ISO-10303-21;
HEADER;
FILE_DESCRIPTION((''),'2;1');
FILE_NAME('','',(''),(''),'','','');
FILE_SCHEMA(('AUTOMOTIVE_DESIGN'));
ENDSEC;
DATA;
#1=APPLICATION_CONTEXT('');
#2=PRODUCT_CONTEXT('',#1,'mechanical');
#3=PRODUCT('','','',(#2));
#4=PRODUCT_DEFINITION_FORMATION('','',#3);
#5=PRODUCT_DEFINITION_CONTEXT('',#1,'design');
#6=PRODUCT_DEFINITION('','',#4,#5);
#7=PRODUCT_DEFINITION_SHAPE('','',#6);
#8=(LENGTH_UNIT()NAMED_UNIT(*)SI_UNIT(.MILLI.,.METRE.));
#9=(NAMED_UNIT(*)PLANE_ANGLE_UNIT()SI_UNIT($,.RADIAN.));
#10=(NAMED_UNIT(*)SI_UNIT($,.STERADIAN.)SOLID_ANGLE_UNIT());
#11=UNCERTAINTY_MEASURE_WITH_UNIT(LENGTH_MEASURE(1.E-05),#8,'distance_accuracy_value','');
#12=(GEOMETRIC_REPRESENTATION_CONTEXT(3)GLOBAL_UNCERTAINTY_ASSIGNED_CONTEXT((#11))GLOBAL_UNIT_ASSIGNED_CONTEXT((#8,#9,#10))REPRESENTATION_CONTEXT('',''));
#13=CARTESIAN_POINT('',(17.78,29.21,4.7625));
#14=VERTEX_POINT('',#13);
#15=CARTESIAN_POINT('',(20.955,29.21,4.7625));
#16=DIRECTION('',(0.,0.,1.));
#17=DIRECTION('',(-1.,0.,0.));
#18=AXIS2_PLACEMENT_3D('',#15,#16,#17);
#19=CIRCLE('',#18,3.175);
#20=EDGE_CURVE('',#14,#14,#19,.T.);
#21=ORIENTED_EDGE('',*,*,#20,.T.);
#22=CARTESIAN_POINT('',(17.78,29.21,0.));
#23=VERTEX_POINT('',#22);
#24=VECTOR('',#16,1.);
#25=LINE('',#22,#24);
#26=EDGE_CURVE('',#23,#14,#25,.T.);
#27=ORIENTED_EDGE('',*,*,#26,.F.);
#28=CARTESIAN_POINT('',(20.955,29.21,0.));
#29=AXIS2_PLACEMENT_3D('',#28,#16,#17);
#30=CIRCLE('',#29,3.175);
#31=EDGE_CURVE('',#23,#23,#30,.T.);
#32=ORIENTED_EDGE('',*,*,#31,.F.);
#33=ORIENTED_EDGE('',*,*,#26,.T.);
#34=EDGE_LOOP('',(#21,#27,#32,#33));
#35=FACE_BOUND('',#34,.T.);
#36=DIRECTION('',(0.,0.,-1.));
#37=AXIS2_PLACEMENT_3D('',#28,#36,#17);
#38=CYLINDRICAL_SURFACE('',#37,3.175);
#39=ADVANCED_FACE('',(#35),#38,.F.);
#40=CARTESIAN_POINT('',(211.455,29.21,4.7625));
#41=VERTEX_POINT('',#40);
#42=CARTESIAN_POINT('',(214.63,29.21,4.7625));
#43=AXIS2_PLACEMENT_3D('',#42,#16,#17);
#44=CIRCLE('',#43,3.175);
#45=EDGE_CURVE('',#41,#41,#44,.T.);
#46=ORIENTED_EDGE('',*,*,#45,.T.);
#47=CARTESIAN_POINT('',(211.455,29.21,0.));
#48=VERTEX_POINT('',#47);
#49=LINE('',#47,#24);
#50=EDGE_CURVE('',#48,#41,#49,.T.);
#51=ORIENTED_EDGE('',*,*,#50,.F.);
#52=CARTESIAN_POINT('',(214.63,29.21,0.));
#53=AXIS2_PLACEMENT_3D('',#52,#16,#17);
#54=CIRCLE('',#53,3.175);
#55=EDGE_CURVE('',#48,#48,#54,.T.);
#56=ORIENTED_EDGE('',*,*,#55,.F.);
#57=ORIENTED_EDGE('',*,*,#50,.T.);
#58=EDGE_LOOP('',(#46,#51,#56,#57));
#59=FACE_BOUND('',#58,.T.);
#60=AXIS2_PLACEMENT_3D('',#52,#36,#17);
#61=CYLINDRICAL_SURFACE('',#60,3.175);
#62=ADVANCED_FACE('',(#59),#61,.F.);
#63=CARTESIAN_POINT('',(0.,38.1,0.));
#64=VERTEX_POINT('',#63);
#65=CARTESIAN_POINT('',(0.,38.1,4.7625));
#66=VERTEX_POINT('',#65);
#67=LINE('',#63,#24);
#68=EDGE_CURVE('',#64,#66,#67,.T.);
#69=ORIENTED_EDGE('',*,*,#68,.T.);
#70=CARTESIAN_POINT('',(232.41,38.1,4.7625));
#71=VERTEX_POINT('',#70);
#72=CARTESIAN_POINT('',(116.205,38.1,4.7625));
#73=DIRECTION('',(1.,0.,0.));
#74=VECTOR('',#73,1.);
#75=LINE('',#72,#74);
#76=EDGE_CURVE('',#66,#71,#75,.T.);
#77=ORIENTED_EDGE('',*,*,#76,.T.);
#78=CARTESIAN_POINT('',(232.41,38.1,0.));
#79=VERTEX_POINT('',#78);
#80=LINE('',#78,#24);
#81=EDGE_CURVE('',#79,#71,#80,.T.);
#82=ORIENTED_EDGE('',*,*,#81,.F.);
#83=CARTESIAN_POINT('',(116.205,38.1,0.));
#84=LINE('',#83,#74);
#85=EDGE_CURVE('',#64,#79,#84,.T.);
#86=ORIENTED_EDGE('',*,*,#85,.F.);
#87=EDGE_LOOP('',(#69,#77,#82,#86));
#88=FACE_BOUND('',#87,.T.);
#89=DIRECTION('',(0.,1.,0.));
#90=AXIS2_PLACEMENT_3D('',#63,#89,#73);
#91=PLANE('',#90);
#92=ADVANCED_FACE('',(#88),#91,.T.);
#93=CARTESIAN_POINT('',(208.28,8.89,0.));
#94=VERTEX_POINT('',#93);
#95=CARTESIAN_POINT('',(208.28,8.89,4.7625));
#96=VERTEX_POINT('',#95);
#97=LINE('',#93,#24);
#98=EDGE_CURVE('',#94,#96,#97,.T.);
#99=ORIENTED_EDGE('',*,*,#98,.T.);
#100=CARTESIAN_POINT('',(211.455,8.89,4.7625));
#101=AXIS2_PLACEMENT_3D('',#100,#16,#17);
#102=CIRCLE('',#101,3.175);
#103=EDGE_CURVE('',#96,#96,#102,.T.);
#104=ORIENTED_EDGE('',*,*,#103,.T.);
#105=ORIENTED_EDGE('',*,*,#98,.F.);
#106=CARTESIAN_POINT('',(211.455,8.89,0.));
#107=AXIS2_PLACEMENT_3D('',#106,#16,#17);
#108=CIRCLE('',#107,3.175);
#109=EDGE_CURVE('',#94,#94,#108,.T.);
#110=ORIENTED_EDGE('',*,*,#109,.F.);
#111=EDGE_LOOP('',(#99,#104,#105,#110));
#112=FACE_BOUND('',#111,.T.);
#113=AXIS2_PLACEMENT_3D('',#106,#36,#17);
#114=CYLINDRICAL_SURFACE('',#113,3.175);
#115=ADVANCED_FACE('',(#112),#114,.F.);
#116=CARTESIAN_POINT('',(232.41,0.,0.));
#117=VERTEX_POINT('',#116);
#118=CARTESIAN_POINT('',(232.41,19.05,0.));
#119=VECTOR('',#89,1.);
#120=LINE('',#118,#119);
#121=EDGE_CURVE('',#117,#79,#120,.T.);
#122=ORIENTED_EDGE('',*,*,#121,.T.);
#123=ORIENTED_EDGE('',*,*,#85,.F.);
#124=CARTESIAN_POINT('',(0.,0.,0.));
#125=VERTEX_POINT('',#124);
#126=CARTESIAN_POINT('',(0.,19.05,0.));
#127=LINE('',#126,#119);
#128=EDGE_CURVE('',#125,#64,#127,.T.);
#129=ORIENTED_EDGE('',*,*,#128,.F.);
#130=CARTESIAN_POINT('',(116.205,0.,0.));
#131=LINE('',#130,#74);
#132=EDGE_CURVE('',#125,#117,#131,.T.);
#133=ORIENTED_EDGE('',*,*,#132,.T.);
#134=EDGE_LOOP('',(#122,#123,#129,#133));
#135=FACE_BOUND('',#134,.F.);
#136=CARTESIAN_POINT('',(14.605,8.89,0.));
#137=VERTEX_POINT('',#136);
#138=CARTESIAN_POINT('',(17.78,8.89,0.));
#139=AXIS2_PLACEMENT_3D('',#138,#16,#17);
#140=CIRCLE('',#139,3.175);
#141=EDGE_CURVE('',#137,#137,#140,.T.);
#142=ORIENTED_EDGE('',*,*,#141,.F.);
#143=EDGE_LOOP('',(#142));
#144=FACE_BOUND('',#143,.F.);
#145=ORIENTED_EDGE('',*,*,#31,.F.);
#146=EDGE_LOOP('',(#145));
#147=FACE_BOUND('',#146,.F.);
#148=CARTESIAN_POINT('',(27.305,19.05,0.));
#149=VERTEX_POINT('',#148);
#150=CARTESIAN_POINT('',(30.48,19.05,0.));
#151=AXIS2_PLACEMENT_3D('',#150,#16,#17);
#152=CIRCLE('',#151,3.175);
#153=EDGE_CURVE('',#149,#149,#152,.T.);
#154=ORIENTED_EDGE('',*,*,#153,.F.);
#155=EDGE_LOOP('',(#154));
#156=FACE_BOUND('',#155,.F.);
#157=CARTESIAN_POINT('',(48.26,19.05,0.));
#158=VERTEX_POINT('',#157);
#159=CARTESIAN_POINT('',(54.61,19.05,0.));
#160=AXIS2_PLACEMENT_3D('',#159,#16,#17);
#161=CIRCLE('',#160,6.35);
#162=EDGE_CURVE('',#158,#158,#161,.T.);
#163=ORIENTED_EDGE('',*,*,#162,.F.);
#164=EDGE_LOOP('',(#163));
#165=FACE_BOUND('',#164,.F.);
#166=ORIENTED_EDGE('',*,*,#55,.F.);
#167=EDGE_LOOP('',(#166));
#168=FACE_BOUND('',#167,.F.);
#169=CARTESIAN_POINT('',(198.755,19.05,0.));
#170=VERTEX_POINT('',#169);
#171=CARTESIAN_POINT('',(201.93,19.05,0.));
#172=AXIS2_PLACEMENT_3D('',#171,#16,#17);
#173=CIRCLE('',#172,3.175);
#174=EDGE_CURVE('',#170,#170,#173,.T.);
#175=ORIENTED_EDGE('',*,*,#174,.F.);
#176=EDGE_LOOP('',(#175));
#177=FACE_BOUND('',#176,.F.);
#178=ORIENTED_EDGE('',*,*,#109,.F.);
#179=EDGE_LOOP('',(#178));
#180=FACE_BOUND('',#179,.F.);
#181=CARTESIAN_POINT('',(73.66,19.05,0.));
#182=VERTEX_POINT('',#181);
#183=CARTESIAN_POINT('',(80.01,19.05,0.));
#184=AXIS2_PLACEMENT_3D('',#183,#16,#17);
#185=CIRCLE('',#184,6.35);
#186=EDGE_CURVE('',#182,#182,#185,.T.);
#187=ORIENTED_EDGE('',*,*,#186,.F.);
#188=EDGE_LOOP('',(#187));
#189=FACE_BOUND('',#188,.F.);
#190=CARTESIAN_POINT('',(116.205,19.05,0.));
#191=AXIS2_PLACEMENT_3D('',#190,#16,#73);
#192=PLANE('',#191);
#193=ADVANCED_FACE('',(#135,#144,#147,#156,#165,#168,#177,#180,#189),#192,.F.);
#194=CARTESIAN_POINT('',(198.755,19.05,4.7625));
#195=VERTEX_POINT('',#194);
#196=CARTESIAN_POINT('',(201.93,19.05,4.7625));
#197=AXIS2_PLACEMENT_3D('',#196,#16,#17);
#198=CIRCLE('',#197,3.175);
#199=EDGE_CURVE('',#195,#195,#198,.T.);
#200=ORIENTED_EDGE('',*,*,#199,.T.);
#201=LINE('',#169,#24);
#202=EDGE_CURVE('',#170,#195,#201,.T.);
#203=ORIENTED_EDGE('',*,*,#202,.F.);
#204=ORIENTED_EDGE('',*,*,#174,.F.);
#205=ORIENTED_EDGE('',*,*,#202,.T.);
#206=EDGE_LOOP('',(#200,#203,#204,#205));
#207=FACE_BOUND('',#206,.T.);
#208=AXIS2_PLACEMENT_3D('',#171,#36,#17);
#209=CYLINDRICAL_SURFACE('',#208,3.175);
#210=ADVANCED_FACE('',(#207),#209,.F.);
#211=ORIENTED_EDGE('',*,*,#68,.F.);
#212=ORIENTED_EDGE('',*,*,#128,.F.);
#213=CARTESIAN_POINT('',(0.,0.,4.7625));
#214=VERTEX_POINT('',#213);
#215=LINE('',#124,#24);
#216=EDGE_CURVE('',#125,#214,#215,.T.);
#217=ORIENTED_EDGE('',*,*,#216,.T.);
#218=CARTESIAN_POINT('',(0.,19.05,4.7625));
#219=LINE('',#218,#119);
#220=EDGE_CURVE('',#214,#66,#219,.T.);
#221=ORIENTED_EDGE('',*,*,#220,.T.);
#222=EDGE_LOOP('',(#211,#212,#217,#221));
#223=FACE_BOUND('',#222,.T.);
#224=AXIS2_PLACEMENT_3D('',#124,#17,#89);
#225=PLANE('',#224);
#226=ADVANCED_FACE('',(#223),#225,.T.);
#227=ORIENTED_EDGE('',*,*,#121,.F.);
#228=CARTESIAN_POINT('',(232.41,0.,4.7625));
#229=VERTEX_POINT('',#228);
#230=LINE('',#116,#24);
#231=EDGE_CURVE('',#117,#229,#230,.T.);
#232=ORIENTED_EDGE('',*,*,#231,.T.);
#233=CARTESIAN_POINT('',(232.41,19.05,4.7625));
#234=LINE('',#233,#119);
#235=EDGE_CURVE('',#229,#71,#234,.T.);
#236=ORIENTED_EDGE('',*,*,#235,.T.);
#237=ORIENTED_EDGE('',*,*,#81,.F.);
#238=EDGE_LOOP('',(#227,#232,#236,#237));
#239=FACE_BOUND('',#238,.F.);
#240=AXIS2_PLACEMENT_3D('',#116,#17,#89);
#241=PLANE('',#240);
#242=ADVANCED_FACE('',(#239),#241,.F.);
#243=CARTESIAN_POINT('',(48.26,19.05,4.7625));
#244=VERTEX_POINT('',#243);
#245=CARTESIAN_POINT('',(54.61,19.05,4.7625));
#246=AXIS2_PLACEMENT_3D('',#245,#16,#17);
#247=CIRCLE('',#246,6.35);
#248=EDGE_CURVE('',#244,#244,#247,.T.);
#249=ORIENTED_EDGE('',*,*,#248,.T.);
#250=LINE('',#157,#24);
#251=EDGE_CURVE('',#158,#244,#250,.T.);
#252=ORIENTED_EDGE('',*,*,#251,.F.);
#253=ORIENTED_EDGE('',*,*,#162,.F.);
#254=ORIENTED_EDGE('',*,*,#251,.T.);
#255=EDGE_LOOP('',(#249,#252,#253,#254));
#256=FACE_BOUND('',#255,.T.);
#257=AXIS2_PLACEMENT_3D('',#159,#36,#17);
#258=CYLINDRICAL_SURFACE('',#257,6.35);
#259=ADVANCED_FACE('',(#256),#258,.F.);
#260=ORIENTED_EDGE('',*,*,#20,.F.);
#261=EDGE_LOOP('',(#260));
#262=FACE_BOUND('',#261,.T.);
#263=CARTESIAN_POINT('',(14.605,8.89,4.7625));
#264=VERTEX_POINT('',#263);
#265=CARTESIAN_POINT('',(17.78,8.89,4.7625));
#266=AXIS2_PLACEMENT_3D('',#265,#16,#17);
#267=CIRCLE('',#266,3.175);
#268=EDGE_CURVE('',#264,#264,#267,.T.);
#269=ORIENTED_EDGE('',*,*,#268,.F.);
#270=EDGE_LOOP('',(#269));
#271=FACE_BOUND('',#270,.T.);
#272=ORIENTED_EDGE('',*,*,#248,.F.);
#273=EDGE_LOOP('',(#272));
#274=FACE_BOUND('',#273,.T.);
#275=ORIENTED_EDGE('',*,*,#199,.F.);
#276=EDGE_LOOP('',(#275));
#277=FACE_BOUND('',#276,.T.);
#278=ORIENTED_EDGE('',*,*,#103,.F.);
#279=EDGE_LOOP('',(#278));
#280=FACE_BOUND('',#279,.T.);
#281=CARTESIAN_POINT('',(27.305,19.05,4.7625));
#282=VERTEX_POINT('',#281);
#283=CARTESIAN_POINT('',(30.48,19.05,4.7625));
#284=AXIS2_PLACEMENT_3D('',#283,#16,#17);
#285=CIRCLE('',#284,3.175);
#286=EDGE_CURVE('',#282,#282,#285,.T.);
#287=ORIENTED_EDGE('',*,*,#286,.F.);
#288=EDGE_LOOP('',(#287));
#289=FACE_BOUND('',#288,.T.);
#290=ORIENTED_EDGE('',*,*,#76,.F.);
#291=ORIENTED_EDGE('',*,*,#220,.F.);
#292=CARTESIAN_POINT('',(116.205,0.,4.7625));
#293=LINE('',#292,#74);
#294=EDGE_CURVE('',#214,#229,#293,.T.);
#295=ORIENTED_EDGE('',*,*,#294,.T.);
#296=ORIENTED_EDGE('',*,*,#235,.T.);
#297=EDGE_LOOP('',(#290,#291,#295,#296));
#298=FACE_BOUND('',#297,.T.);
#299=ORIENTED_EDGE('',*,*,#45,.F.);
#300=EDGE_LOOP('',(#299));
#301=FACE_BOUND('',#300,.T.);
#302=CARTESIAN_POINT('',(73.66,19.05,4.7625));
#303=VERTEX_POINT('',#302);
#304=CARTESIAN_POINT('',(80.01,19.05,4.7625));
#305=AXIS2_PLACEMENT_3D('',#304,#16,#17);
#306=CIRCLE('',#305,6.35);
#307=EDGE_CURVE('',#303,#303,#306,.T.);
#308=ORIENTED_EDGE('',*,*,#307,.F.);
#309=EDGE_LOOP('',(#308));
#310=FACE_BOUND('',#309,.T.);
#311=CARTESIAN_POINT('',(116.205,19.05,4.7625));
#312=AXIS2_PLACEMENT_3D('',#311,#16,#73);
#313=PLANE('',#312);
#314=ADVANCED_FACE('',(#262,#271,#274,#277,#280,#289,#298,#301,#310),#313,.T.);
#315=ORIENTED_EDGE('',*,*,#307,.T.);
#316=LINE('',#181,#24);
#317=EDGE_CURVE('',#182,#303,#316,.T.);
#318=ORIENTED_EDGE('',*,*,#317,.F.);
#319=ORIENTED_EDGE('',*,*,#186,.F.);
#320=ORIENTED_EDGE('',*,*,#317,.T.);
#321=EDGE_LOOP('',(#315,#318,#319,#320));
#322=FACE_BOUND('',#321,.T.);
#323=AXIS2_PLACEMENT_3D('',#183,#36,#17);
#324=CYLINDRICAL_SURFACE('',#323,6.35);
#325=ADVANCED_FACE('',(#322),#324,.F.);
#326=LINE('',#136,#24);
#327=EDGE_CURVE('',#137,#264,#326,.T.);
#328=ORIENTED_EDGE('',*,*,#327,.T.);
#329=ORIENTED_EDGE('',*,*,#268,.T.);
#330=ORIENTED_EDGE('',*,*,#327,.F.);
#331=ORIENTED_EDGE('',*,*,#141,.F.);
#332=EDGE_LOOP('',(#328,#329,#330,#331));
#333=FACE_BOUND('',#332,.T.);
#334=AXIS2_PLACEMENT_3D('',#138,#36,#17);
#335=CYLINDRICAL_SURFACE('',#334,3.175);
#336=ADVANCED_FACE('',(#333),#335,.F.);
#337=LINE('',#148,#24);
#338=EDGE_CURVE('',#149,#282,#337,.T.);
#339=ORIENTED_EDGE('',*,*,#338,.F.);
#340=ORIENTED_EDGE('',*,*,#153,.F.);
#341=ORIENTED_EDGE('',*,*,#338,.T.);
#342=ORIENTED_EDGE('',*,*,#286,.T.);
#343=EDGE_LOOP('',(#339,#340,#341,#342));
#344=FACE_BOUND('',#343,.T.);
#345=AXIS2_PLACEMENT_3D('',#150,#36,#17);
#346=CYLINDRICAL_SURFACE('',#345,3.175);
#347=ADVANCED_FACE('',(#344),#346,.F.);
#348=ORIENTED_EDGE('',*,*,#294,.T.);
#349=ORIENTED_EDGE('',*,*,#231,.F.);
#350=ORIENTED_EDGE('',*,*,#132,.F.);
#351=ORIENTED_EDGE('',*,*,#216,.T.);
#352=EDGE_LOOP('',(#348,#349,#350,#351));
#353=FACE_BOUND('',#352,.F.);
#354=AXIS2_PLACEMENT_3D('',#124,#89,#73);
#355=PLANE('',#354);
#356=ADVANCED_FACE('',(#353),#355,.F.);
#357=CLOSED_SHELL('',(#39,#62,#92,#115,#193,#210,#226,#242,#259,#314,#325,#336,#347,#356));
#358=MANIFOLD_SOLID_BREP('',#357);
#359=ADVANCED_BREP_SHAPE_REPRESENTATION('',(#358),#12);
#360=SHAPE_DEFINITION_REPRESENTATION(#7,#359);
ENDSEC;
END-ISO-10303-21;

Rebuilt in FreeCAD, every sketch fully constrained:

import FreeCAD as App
import Part
import Sketcher
Q = App.Units.Quantity


def add_polygon(sketch, points):
    """Adds a closed chain of lines whose ends are joined by coincident constraints."""
    first, n = sketch.GeometryCount, len(points)
    for a, b in zip(points, points[1:] + points[:1]):
        sketch.addGeometry(Part.LineSegment(App.Vector(*a, 0), App.Vector(*b, 0)), False)
    for i in range(n):
        sketch.addConstraint(Sketcher.Constraint("Coincident", first + i, 2, first + (i + 1) % n, 1))

doc = App.newDocument("Part")
params = doc.addObject("Spreadsheet::Sheet", "Params")
for row, (alias, value) in enumerate([
    ("sketch1_diameter", "0.5 in"),
    ("sketch1_diameter2", "0.25 in"),
    ("sketch1_height", "1.5 in"),
    ("sketch1_width", "9.15 in"),
    ("pad1_length", "0.1875 in"),
], start=1):
    params.set(f"A{row}", alias)
    params.set(f"B{row}", "=" + value)
    params.setAlias(f"B{row}", alias)

body = doc.addObject("PartDesign::Body", "Body")

sketch1 = body.newObject("Sketcher::SketchObject", "Sketch")
sketch1.AttachmentSupport = (doc.getObject("XY_Plane"), [""])
sketch1.MapMode = "FlatFace"
add_polygon(sketch1, [(0, 38.1), (0, 0), (232.41, 0), (232.41, 38.1)])
sketch1.addGeometry(Part.Circle(App.Vector(17.78, 8.89, 0), App.Vector(0, 0, 1), 3.175), False)
sketch1.addGeometry(Part.Circle(App.Vector(211.455, 8.89, 0), App.Vector(0, 0, 1), 3.175), False)
sketch1.addGeometry(Part.Circle(App.Vector(30.48, 19.05, 0), App.Vector(0, 0, 1), 3.175), False)
sketch1.addGeometry(Part.Circle(App.Vector(54.61, 19.05, 0), App.Vector(0, 0, 1), 6.35), False)
sketch1.addGeometry(Part.Circle(App.Vector(80.01, 19.05, 0), App.Vector(0, 0, 1), 6.35), False)
sketch1.addGeometry(Part.Circle(App.Vector(20.955, 29.21, 0), App.Vector(0, 0, 1), 3.175), False)
sketch1.addGeometry(Part.Circle(App.Vector(201.93, 19.05, 0), App.Vector(0, 0, 1), 3.175), False)
sketch1.addGeometry(Part.Circle(App.Vector(214.63, 29.21, 0), App.Vector(0, 0, 1), 3.175), False)
sketch1.addConstraint([
    Sketcher.Constraint("Vertical", 0),
    Sketcher.Constraint("Horizontal", 1),
    Sketcher.Constraint("Vertical", 2),
    Sketcher.Constraint("Horizontal", 3),
    Sketcher.Constraint("Coincident", 0, 2, -1, 1),
    Sketcher.Constraint("Equal", 4, 5),
    Sketcher.Constraint("Equal", 5, 6),
    Sketcher.Constraint("Equal", 7, 8),
    Sketcher.Constraint("Equal", 6, 9),
    Sketcher.Constraint("Equal", 9, 10),
    Sketcher.Constraint("Equal", 10, 11),
    Sketcher.Constraint("Horizontal", 4, 3, 5, 3),
    Sketcher.Constraint("Horizontal", 6, 3, 7, 3),
    Sketcher.Constraint("Horizontal", 7, 3, 8, 3),
    Sketcher.Constraint("Horizontal", 8, 3, 10, 3),
    Sketcher.Constraint("Horizontal", 9, 3, 11, 3),
    Sketcher.Constraint("Diameter", 7, Q("0.5 in")),
    Sketcher.Constraint("Diameter", 4, Q("0.25 in")),
    Sketcher.Constraint("DistanceY", 0, 2, 0, 1, Q("1.5 in")),
    Sketcher.Constraint("DistanceX", 7, 3, 8, 3, Q("1 in")),
    Sketcher.Constraint("DistanceX", 8, 3, 1, 2, Q("6 in")),
    Sketcher.Constraint("DistanceX", 1, 1, 1, 2, Q("9.15 in")),
    Sketcher.Constraint("DistanceX", -1, 1, 4, 3, Q("0.7 in")),
    Sketcher.Constraint("DistanceX", -1, 1, 6, 3, Q("1.2 in")),
    Sketcher.Constraint("DistanceY", 4, 3, 6, 3, Q("0.4 in")),
    Sketcher.Constraint("DistanceY", 6, 3, 9, 3, Q("0.4 in")),
    Sketcher.Constraint("DistanceX", 9, 3, 5, 3, Q("7.5 in")),
    Sketcher.Constraint("DistanceX", 8, 3, 10, 3, Q("4.8 in")),
    Sketcher.Constraint("DistanceX", 10, 3, 11, 3, Q("0.5 in")),
    Sketcher.Constraint("DistanceY", -1, 1, 4, 3, Q("0.35 in")),
    Sketcher.Constraint("DistanceX", -1, 1, 5, 3, Q("8.325 in")),
])
sketch1.setExpression("Constraints[20]", "Params.sketch1_diameter")
sketch1.setExpression("Constraints[21]", "Params.sketch1_diameter2")
sketch1.setExpression("Constraints[22]", "Params.sketch1_height")
sketch1.setExpression("Constraints[25]", "Params.sketch1_width")
pad1 = body.newObject("PartDesign::Pad", "Pad")
pad1.Profile = sketch1
pad1.setExpression("Length", "Params.pad1_length")

doc.recompute()
